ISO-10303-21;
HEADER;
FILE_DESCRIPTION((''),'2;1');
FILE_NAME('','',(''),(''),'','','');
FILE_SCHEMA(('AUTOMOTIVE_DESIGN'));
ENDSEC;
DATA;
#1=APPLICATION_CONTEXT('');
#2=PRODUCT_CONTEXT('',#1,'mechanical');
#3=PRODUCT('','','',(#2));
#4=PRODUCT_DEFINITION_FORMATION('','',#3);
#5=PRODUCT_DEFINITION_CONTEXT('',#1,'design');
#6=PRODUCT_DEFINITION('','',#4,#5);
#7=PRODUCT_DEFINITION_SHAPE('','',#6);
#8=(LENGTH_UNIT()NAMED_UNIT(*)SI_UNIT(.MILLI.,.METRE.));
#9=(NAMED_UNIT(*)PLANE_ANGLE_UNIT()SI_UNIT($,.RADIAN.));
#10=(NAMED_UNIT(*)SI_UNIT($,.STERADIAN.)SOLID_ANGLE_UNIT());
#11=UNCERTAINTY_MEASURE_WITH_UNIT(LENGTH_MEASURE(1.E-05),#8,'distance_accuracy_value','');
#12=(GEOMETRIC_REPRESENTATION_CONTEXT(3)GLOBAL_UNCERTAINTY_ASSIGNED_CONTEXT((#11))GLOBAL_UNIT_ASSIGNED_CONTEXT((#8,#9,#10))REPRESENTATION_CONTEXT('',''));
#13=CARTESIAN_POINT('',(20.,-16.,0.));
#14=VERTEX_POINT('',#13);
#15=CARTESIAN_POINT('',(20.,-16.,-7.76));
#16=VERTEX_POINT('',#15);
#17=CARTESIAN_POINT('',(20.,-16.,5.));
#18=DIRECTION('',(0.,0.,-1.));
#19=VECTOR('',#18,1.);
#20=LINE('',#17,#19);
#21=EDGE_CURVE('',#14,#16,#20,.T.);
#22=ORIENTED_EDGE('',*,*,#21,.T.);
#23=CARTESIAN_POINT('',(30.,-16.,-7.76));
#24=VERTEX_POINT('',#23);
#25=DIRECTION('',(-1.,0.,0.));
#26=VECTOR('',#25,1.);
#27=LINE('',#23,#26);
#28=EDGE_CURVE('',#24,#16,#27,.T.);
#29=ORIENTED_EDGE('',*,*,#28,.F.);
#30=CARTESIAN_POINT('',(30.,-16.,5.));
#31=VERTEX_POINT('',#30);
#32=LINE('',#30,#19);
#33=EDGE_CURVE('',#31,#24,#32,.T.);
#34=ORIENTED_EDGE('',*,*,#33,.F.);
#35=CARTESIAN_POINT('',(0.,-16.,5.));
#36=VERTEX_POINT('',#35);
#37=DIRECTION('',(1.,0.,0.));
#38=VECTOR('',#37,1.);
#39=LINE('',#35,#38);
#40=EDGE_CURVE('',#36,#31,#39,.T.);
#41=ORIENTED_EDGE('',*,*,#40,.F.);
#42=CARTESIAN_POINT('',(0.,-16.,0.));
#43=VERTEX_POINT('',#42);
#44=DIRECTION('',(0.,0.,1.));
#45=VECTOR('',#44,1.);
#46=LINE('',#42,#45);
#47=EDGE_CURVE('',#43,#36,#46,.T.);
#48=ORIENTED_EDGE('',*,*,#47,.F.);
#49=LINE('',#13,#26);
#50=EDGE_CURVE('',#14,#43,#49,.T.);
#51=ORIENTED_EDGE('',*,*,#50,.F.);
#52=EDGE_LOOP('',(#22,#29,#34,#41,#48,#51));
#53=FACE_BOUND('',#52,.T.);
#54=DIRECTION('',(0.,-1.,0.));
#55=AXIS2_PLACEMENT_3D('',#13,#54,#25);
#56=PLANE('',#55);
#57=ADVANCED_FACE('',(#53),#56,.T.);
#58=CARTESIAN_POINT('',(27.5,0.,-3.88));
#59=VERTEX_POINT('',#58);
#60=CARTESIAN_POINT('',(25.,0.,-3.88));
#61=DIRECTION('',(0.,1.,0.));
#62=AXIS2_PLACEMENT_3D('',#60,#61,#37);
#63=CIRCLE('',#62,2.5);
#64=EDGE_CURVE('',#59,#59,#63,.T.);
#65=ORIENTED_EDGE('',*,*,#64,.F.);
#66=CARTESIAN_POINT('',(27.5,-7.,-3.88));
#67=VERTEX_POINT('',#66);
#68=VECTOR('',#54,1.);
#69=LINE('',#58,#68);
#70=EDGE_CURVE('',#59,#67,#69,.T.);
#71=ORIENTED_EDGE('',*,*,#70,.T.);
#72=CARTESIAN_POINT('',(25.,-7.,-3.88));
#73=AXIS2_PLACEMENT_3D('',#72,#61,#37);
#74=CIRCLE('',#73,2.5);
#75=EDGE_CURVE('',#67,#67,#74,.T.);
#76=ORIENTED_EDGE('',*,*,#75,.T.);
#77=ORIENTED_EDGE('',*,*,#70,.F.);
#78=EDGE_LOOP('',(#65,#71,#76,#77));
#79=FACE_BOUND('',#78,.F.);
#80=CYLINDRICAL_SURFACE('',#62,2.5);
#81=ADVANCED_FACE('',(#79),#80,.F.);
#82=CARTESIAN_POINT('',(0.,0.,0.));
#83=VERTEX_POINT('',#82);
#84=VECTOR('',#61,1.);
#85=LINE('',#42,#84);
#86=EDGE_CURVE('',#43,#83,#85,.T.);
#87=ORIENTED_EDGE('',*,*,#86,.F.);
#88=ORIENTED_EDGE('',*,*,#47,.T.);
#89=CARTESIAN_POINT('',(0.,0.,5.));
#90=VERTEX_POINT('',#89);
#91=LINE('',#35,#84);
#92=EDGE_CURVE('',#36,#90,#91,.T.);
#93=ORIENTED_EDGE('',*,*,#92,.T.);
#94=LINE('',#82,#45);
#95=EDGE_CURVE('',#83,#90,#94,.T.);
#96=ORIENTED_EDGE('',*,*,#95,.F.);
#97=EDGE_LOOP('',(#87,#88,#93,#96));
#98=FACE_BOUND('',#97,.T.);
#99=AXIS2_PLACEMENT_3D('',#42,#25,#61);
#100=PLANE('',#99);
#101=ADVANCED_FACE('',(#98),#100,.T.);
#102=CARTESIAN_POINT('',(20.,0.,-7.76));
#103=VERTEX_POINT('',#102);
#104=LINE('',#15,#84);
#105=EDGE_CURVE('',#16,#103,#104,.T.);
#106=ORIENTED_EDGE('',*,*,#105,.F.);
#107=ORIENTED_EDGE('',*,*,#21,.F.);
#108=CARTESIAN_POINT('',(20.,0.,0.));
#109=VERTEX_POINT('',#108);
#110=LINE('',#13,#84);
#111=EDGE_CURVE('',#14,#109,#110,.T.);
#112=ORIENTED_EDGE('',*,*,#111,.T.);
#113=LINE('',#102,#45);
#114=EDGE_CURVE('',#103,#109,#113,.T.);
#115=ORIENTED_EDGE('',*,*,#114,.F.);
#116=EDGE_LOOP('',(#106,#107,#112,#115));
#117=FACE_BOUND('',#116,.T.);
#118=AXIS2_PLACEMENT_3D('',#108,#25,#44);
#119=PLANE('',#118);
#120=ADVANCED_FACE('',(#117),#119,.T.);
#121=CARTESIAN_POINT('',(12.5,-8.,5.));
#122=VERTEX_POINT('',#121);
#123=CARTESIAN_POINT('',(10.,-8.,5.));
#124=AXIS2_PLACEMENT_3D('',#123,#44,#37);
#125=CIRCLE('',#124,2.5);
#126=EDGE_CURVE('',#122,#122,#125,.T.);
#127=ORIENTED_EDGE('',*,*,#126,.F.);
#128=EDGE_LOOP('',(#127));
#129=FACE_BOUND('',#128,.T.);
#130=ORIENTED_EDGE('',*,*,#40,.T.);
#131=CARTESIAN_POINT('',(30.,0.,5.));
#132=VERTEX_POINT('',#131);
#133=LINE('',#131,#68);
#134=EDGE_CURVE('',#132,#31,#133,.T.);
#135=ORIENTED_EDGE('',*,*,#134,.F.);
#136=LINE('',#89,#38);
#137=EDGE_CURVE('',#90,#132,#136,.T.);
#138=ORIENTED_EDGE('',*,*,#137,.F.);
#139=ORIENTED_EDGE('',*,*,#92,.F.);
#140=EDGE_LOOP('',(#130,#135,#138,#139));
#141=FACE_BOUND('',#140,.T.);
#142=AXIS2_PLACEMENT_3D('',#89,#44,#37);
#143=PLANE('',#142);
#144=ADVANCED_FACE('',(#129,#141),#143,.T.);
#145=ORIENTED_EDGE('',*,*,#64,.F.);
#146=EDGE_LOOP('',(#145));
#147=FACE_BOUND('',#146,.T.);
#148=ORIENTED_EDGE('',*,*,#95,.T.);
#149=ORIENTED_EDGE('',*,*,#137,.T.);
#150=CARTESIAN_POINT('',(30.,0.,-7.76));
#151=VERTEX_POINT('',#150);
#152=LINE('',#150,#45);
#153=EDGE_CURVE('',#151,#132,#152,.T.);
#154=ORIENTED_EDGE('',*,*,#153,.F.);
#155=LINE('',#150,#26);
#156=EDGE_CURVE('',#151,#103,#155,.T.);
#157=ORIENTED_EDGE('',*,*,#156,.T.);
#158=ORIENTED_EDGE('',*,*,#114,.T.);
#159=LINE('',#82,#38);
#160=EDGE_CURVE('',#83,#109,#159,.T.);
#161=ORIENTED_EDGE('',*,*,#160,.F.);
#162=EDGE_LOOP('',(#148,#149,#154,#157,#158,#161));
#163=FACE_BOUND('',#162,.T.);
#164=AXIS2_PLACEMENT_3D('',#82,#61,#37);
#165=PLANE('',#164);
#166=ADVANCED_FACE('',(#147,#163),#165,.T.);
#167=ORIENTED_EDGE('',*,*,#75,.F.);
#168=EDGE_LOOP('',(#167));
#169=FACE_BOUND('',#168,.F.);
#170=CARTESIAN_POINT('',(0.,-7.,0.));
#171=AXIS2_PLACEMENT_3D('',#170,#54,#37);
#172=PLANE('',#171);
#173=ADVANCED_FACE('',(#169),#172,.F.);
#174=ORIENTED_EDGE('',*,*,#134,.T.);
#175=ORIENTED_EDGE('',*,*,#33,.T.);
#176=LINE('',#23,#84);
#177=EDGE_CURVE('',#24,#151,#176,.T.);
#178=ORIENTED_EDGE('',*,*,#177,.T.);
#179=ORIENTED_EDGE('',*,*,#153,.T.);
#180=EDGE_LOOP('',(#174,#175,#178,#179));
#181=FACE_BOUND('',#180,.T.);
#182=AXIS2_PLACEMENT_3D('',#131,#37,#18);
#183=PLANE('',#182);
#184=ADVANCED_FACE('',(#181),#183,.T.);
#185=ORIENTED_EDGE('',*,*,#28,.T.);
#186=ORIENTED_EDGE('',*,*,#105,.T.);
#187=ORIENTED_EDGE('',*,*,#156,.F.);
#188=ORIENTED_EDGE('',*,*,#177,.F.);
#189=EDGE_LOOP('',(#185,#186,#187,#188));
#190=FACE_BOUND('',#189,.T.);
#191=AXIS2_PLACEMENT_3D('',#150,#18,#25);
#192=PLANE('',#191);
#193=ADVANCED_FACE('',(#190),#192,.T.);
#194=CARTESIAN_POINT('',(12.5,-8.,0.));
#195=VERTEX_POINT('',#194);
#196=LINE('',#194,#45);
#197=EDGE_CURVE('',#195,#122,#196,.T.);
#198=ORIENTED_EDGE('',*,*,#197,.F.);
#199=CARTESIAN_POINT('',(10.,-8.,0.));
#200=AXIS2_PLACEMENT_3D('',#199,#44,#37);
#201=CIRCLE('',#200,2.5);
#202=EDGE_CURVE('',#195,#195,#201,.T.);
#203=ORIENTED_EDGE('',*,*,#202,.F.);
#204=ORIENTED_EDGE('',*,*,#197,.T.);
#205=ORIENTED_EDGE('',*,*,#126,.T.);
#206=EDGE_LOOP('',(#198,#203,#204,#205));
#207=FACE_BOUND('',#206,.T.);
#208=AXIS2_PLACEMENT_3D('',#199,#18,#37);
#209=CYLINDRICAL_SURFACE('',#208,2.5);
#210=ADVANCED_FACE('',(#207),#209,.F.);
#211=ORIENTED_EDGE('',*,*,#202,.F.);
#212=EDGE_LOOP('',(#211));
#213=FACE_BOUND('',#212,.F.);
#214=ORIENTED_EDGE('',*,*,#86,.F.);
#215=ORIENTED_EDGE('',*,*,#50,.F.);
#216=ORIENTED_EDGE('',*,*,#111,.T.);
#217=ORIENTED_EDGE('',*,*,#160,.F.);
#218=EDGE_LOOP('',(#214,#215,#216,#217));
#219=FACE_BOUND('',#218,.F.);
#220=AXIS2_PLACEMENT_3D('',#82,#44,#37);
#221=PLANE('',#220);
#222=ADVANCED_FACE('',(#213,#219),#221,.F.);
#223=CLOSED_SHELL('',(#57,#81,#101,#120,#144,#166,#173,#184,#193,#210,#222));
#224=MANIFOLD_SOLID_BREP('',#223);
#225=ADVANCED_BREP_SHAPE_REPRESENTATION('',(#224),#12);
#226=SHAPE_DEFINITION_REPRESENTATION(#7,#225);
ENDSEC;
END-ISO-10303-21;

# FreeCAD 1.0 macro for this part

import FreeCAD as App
import Part
import Sketcher

V = App.Vector
Q = App.Units.Quantity

doc = App.newDocument("Part")
body = doc.addObject("PartDesign::Body", "Body")

# Sketch on XY plane
sketch1 = body.newObject("Sketcher::SketchObject", "Sketch")
sketch1.AttachmentSupport = (doc.getObject("XY_Plane"), [""])
sketch1.MapMode = "FlatFace"
sketch1.addGeometry(Part.LineSegment(V(20, 0, 0), V(0, 0, 0)), False)
sketch1.addGeometry(Part.LineSegment(V(0, 0, 0), V(0, -16, 0)), False)
sketch1.addGeometry(Part.LineSegment(V(0, -16, 0), V(20, -16, 0)), False)
sketch1.addGeometry(Part.LineSegment(V(20, -16, 0), V(20, 0, 0)), False)
sketch1.addGeometry(Part.Circle(V(10, -8, 0), V(0, 0, 1), 2.5), False)
sketch1.addConstraint(Sketcher.Constraint("Coincident", 0, 2, 1, 1))
sketch1.addConstraint(Sketcher.Constraint("Coincident", 1, 2, 2, 1))
sketch1.addConstraint(Sketcher.Constraint("Coincident", 2, 2, 3, 1))
sketch1.addConstraint(Sketcher.Constraint("Coincident", 3, 2, 0, 1))
sketch1.addConstraint(Sketcher.Constraint("Horizontal", 0))
sketch1.addConstraint(Sketcher.Constraint("Vertical", 1))
sketch1.addConstraint(Sketcher.Constraint("Horizontal", 2))
sketch1.addConstraint(Sketcher.Constraint("Vertical", 3))
sketch1.addConstraint(Sketcher.Constraint("Coincident", 0, 2, -1, 1))
sketch1.addConstraint(Sketcher.Constraint("Diameter", 4, Q("5 mm")))
sketch1.addConstraint(Sketcher.Constraint("DistanceX", 0, 2, 0, 1, Q("20 mm")))
sketch1.addConstraint(Sketcher.Constraint("DistanceY", 1, 2, 1, 1, Q("16 mm")))
sketch1.addConstraint(Sketcher.Constraint("DistanceX", -1, 1, 4, 3, Q("10 mm")))
sketch1.addConstraint(Sketcher.Constraint("DistanceY", 4, 3, -1, 1, Q("8 mm")))
pad1 = body.newObject("PartDesign::Pad", "Pad")
pad1.Profile = sketch1
pad1.Length = 5

# Sketch on XZ plane
sketch2 = body.newObject("Sketcher::SketchObject", "Sketch001")
sketch2.AttachmentSupport = (doc.getObject("XZ_Plane"), [""])
sketch2.MapMode = "FlatFace"
sketch2.addGeometry(Part.LineSegment(V(30, 5, 0), V(30, -7.8, 0)), False)
sketch2.addGeometry(Part.LineSegment(V(30, -7.8, 0), V(20, -7.8, 0)), False)
sketch2.addGeometry(Part.LineSegment(V(20, -7.8, 0), V(20, 5, 0)), False)
sketch2.addGeometry(Part.LineSegment(V(20, 5, 0), V(30, 5, 0)), False)
sketch2.addGeometry(Part.Circle(V(25, -3.9, 0), V(0, 0, 1), 2.5), False)
sketch2.addConstraint(Sketcher.Constraint("Coincident", 0, 2, 1, 1))
sketch2.addConstraint(Sketcher.Constraint("Coincident", 1, 2, 2, 1))
sketch2.addConstraint(Sketcher.Constraint("Coincident", 2, 2, 3, 1))
sketch2.addConstraint(Sketcher.Constraint("Coincident", 3, 2, 0, 1))
sketch2.addConstraint(Sketcher.Constraint("Vertical", 0))
sketch2.addConstraint(Sketcher.Constraint("Horizontal", 1))
sketch2.addConstraint(Sketcher.Constraint("Vertical", 2))
sketch2.addConstraint(Sketcher.Constraint("Horizontal", 3))
sketch2.addConstraint(Sketcher.Constraint("Diameter", 4, Q("5 mm")))
sketch2.addConstraint(Sketcher.Constraint("DistanceX", 1, 2, 1, 1, Q("10 mm")))
sketch2.addConstraint(Sketcher.Constraint("DistanceY", -1, 1, 2, 2, Q("5 mm")))
sketch2.addConstraint(Sketcher.Constraint("DistanceX", 4, 3, 0, 2, Q("5 mm")))
sketch2.addConstraint(Sketcher.Constraint("DistanceY", 0, 2, -1, 1, Q("7.76 mm")))
sketch2.addConstraint(Sketcher.Constraint("DistanceX", -1, 1, 4, 3, Q("25 mm")))
sketch2.addConstraint(Sketcher.Constraint("DistanceY", 4, 3, -1, 1, Q("3.88 mm")))
pad2 = body.newObject("PartDesign::Pad", "Pad001")
pad2.Profile = sketch2
pad2.Length = 16

# Sketch on XZ plane
sketch3 = body.newObject("Sketcher::SketchObject", "Sketch002")
sketch3.AttachmentSupport = (doc.getObject("XZ_Plane"), [""])
sketch3.MapMode = "FlatFace"
sketch3.AttachmentOffset = App.Placement(V(0, 0, 16), App.Rotation())
sketch3.addGeometry(Part.LineSegment(V(20, -8, 0), V(30, -8, 0)), False)
sketch3.addGeometry(Part.LineSegment(V(30, -8, 0), V(30, 0, 0)), False)
sketch3.addGeometry(Part.LineSegment(V(30, 0, 0), V(20, 0, 0)), False)
sketch3.addGeometry(Part.LineSegment(V(20, 0, 0), V(20, -8, 0)), False)
sketch3.addConstraint(Sketcher.Constraint("Coincident", 0, 2, 1, 1))
sketch3.addConstraint(Sketcher.Constraint("Coincident", 1, 2, 2, 1))
sketch3.addConstraint(Sketcher.Constraint("Coincident", 2, 2, 3, 1))
sketch3.addConstraint(Sketcher.Constraint("Coincident", 3, 2, 0, 1))
sketch3.addConstraint(Sketcher.Constraint("Horizontal", 0))
sketch3.addConstraint(Sketcher.Constraint("Vertical", 1))
sketch3.addConstraint(Sketcher.Constraint("Horizontal", 2))
sketch3.addConstraint(Sketcher.Constraint("Vertical", 3))
sketch3.addConstraint(Sketcher.Constraint("PointOnObject", 1, 2, -1))
sketch3.addConstraint(Sketcher.Constraint("DistanceX", 0, 1, 0, 2, Q("10 mm")))
sketch3.addConstraint(Sketcher.Constraint("DistanceX", -1, 1, 0, 2, Q("30 mm")))
sketch3.addConstraint(Sketcher.Constraint("DistanceY", 1, 1, 1, 2, Q("7.76 mm")))
pad3 = body.newObject("PartDesign::Pad", "Pad002")
pad3.Profile = sketch3
pad3.Length = 9
pad3.Reversed = True

doc.recompute()
